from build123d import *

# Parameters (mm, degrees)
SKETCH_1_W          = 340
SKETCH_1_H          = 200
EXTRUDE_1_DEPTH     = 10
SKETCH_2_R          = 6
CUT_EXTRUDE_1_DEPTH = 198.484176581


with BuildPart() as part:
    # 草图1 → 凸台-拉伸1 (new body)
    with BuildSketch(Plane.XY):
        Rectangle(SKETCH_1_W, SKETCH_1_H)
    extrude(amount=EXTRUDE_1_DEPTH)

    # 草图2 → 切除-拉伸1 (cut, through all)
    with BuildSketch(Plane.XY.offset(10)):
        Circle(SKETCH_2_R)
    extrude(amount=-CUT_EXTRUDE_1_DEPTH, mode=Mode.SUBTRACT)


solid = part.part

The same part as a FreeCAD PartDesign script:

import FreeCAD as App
import Part
import Sketcher

doc = App.newDocument("Part")
body = doc.addObject("PartDesign::Body", "Body")

# Sketch on XY plane
sketch1 = body.newObject("Sketcher::SketchObject", "Sketch")
sketch1.AttachmentSupport = (doc.getObject("XY_Plane"), [""])
sketch1.MapMode = "FlatFace"
sketch1.addGeometry([
    Part.LineSegment(App.Vector(-170, 100, 0), App.Vector(-170, -100, 0)),
    Part.LineSegment(App.Vector(-170, -100, 0), App.Vector(170, -100, 0)),
    Part.LineSegment(App.Vector(170, -100, 0), App.Vector(170, 100, 0)),
    Part.LineSegment(App.Vector(170, 100, 0), App.Vector(-170, 100, 0)),
], False)
sketch1.addConstraint([
    Sketcher.Constraint("Coincident", 0, 2, 1, 1),
    Sketcher.Constraint("Coincident", 1, 2, 2, 1),
    Sketcher.Constraint("Coincident", 2, 2, 3, 1),
    Sketcher.Constraint("Coincident", 3, 2, 0, 1),
    Sketcher.Constraint("Vertical", 0),
    Sketcher.Constraint("Horizontal", 1),
    Sketcher.Constraint("Vertical", 2),
    Sketcher.Constraint("Horizontal", 3),
    Sketcher.Constraint("Symmetric", 0, 2, 2, 2, -1, 1),
    Sketcher.Constraint("DistanceX", 1, 1, 1, 2, 340.0),
    Sketcher.Constraint("DistanceY", 0, 2, 0, 1, 200.0),
])
pad1 = body.newObject("PartDesign::Pad", "Pad")
pad1.Profile = sketch1
pad1.Length = 10

# Sketch on XY plane
sketch2 = body.newObject("Sketcher::SketchObject", "Sketch001")
sketch2.AttachmentSupport = (doc.getObject("XY_Plane"), [""])
sketch2.MapMode = "FlatFace"
sketch2.AttachmentOffset = App.Placement(App.Vector(0, 0, 10), App.Rotation())
sketch2.addGeometry(Part.Circle(App.Vector(0, 0, 0), App.Vector(0, 0, 1), 6), False)
sketch2.addConstraint([
    Sketcher.Constraint("Coincident", 0, 3, -1, 1),
    Sketcher.Constraint("Diameter", 0, 12.0),
])
pocket1 = body.newObject("PartDesign::Pocket", "Pocket")
pocket1.Profile = sketch2
pocket1.Type = "ThroughAll"

doc.recompute()
